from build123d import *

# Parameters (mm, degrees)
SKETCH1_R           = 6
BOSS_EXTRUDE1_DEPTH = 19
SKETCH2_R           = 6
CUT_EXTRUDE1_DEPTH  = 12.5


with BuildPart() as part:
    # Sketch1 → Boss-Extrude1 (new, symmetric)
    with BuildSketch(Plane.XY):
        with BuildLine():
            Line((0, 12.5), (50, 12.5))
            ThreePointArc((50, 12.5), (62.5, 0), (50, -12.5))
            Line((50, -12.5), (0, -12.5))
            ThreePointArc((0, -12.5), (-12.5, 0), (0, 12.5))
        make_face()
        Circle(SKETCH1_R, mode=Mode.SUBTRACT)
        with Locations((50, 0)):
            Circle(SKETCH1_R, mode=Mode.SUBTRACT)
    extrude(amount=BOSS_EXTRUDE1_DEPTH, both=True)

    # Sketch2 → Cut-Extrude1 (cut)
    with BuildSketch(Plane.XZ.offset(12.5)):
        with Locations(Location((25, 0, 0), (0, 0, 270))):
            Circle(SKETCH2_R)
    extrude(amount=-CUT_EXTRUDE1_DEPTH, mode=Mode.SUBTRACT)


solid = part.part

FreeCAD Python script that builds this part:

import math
import FreeCAD as App
import Part
import Sketcher

V = App.Vector

doc = App.newDocument("Part")
params = doc.addObject("Spreadsheet::Sheet", "Params")
for row, (alias, value) in enumerate([
    ("sketch1_diameter", "12 mm"),
    ("sketch1_radius", "12.5 mm"),
    ("sketch1_width", "50 mm"),
    ("pad1_length", "38 mm"),
    ("sketch2_diameter", "12 mm"),
    ("pocket1_length", "12.5 mm"),
], start=1):
    params.set(f"A{row}", alias)
    params.set(f"B{row}", "=" + value)
    params.setAlias(f"B{row}", alias)

body = doc.addObject("PartDesign::Body", "Body")

# Sketch on XY plane
sketch1 = body.newObject("Sketcher::SketchObject", "Sketch")
sketch1.AttachmentSupport = (doc.getObject("XY_Plane"), [""])
sketch1.MapMode = "FlatFace"
sketch1.addGeometry([
    Part.LineSegment(V(50, 12.5, 0), V(0, 12.5, 0)),  # 0
    Part.ArcOfCircle(Part.Circle(V(0, 0, 0), V(0, 0, 1), 12.5), math.radians(90), math.radians(270)),  # 1
    Part.LineSegment(V(0, -12.5, 0), V(50, -12.5, 0)),  # 2
    Part.ArcOfCircle(Part.Circle(V(50, 0, 0), V(0, 0, 1), 12.5), math.radians(-90), math.radians(90)),  # 3
    Part.Circle(V(50, 0, 0), V(0, 0, 1), 6),  # 4
    Part.Circle(V(0, 0, 0), V(0, 0, 1), 6),  # 5
], False)
sketch1.addConstraint([
    Sketcher.Constraint("Tangent", 0, 2, 1, 1),
    Sketcher.Constraint("Tangent", 1, 2, 2, 1),
    Sketcher.Constraint("Tangent", 2, 2, 3, 1),
    Sketcher.Constraint("Tangent", 3, 2, 0, 1),
    Sketcher.Constraint("Horizontal", 0),
    Sketcher.Constraint("Horizontal", 2),
    Sketcher.Constraint("Coincident", 1, 3, -1, 1),
    Sketcher.Constraint("Coincident", 5, 3, -1, 1),
    Sketcher.Constraint("Coincident", 4, 3, 3, 3),
    Sketcher.Constraint("Equal", 4, 5),
    Sketcher.Constraint("Diameter", 4, 12.0),
    Sketcher.Constraint("Radius", 1, 12.5),
    Sketcher.Constraint("DistanceX", 0, 2, 0, 1, 50.0),
])
sketch1.setExpression("Constraints[10]", "Params.sketch1_diameter")
sketch1.setExpression("Constraints[11]", "Params.sketch1_radius")
sketch1.setExpression("Constraints[12]", "Params.sketch1_width")
pad1 = body.newObject("PartDesign::Pad", "Pad")
pad1.Profile = sketch1
pad1.setExpression("Length", "Params.pad1_length")
pad1.Midplane = True

# Sketch on XZ plane
sketch2 = body.newObject("Sketcher::SketchObject", "Sketch001")
sketch2.AttachmentSupport = (doc.getObject("XZ_Plane"), [""])
sketch2.MapMode = "FlatFace"
sketch2.AttachmentOffset = App.Placement(V(0, 0, 12.5), App.Rotation())
sketch2.addGeometry(Part.Circle(V(25, 0, 0), V(0, 0, 1), 6), False)
sketch2.addConstraint([
    Sketcher.Constraint("PointOnObject", 0, 3, -1),
    Sketcher.Constraint("Diameter", 0, 12.0),
    Sketcher.Constraint("DistanceX", -1, 1, 0, 3, 25.0),
])
sketch2.setExpression("Constraints[1]", "Params.sketch2_diameter")
pocket1 = body.newObject("PartDesign::Pocket", "Pocket")
pocket1.Profile = sketch2
pocket1.setExpression("Length", "Params.pocket1_length")

doc.recompute()
